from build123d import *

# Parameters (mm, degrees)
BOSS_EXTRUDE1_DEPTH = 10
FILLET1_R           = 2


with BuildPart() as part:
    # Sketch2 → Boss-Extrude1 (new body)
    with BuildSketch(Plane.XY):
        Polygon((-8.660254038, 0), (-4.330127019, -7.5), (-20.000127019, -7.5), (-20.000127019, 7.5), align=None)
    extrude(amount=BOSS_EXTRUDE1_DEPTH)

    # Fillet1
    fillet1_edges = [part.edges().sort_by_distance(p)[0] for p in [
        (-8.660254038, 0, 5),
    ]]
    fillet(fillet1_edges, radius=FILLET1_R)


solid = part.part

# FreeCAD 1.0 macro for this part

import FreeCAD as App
import Part
import Sketcher

V = App.Vector
Q = App.Units.Quantity


def edges_at(feature, points):
    """Names of the edges that pass closest to the given points."""
    edges = feature.Shape.Edges
    near = lambda p: min(range(len(edges)), key=lambda i: edges[i].distToShape(Part.Vertex(*p))[0])
    return sorted({f"Edge{near(p) + 1}" for p in points})

doc = App.newDocument("Part")
body = doc.addObject("PartDesign::Body", "Body")

# Sketch on XY plane
sketch1 = body.newObject("Sketcher::SketchObject", "Sketch")
sketch1.AttachmentSupport = (doc.getObject("XY_Plane"), [""])
sketch1.MapMode = "FlatFace"
sketch1.addGeometry([
    Part.LineSegment(V(-4, -8, 0), V(-9, 0, 0)),
    Part.LineSegment(V(-9, 0, 0), V(-20, 8, 0)),
    Part.LineSegment(V(-20, 8, 0), V(-20, -8, 0)),
    Part.LineSegment(V(-20, -8, 0), V(-4, -8, 0)),
], False)
sketch1.addConstraint([
    Sketcher.Constraint("Coincident", 0, 2, 1, 1),
    Sketcher.Constraint("Coincident", 1, 2, 2, 1),
    Sketcher.Constraint("Coincident", 2, 2, 3, 1),
    Sketcher.Constraint("Coincident", 3, 2, 0, 1),
    Sketcher.Constraint("Vertical", 2),
    Sketcher.Constraint("Horizontal", 3),
    Sketcher.Constraint("PointOnObject", 0, 2, -1),
    Sketcher.Constraint("DistanceY", 2, 2, 2, 1, 15.0),
    Sketcher.Constraint("Angle", 0, Q("120 deg")),
    Sketcher.Constraint("DistanceX", 3, 1, 3, 2, 15.67),
    Sketcher.Constraint("DistanceY", -1, 1, 1, 2, 7.5),
    Sketcher.Constraint("DistanceX", 0, 2, -1, 1, 8.660254),
])
pad1 = body.newObject("PartDesign::Pad", "Pad")
pad1.Profile = sketch1
pad1.Length = 10
doc.recompute()

fillet = body.newObject("PartDesign::Fillet", "Fillet")
fillet.Base = (pad1, edges_at(pad1, [(-8.66, 0, 5)]))
fillet.Radius = 2

doc.recompute()
